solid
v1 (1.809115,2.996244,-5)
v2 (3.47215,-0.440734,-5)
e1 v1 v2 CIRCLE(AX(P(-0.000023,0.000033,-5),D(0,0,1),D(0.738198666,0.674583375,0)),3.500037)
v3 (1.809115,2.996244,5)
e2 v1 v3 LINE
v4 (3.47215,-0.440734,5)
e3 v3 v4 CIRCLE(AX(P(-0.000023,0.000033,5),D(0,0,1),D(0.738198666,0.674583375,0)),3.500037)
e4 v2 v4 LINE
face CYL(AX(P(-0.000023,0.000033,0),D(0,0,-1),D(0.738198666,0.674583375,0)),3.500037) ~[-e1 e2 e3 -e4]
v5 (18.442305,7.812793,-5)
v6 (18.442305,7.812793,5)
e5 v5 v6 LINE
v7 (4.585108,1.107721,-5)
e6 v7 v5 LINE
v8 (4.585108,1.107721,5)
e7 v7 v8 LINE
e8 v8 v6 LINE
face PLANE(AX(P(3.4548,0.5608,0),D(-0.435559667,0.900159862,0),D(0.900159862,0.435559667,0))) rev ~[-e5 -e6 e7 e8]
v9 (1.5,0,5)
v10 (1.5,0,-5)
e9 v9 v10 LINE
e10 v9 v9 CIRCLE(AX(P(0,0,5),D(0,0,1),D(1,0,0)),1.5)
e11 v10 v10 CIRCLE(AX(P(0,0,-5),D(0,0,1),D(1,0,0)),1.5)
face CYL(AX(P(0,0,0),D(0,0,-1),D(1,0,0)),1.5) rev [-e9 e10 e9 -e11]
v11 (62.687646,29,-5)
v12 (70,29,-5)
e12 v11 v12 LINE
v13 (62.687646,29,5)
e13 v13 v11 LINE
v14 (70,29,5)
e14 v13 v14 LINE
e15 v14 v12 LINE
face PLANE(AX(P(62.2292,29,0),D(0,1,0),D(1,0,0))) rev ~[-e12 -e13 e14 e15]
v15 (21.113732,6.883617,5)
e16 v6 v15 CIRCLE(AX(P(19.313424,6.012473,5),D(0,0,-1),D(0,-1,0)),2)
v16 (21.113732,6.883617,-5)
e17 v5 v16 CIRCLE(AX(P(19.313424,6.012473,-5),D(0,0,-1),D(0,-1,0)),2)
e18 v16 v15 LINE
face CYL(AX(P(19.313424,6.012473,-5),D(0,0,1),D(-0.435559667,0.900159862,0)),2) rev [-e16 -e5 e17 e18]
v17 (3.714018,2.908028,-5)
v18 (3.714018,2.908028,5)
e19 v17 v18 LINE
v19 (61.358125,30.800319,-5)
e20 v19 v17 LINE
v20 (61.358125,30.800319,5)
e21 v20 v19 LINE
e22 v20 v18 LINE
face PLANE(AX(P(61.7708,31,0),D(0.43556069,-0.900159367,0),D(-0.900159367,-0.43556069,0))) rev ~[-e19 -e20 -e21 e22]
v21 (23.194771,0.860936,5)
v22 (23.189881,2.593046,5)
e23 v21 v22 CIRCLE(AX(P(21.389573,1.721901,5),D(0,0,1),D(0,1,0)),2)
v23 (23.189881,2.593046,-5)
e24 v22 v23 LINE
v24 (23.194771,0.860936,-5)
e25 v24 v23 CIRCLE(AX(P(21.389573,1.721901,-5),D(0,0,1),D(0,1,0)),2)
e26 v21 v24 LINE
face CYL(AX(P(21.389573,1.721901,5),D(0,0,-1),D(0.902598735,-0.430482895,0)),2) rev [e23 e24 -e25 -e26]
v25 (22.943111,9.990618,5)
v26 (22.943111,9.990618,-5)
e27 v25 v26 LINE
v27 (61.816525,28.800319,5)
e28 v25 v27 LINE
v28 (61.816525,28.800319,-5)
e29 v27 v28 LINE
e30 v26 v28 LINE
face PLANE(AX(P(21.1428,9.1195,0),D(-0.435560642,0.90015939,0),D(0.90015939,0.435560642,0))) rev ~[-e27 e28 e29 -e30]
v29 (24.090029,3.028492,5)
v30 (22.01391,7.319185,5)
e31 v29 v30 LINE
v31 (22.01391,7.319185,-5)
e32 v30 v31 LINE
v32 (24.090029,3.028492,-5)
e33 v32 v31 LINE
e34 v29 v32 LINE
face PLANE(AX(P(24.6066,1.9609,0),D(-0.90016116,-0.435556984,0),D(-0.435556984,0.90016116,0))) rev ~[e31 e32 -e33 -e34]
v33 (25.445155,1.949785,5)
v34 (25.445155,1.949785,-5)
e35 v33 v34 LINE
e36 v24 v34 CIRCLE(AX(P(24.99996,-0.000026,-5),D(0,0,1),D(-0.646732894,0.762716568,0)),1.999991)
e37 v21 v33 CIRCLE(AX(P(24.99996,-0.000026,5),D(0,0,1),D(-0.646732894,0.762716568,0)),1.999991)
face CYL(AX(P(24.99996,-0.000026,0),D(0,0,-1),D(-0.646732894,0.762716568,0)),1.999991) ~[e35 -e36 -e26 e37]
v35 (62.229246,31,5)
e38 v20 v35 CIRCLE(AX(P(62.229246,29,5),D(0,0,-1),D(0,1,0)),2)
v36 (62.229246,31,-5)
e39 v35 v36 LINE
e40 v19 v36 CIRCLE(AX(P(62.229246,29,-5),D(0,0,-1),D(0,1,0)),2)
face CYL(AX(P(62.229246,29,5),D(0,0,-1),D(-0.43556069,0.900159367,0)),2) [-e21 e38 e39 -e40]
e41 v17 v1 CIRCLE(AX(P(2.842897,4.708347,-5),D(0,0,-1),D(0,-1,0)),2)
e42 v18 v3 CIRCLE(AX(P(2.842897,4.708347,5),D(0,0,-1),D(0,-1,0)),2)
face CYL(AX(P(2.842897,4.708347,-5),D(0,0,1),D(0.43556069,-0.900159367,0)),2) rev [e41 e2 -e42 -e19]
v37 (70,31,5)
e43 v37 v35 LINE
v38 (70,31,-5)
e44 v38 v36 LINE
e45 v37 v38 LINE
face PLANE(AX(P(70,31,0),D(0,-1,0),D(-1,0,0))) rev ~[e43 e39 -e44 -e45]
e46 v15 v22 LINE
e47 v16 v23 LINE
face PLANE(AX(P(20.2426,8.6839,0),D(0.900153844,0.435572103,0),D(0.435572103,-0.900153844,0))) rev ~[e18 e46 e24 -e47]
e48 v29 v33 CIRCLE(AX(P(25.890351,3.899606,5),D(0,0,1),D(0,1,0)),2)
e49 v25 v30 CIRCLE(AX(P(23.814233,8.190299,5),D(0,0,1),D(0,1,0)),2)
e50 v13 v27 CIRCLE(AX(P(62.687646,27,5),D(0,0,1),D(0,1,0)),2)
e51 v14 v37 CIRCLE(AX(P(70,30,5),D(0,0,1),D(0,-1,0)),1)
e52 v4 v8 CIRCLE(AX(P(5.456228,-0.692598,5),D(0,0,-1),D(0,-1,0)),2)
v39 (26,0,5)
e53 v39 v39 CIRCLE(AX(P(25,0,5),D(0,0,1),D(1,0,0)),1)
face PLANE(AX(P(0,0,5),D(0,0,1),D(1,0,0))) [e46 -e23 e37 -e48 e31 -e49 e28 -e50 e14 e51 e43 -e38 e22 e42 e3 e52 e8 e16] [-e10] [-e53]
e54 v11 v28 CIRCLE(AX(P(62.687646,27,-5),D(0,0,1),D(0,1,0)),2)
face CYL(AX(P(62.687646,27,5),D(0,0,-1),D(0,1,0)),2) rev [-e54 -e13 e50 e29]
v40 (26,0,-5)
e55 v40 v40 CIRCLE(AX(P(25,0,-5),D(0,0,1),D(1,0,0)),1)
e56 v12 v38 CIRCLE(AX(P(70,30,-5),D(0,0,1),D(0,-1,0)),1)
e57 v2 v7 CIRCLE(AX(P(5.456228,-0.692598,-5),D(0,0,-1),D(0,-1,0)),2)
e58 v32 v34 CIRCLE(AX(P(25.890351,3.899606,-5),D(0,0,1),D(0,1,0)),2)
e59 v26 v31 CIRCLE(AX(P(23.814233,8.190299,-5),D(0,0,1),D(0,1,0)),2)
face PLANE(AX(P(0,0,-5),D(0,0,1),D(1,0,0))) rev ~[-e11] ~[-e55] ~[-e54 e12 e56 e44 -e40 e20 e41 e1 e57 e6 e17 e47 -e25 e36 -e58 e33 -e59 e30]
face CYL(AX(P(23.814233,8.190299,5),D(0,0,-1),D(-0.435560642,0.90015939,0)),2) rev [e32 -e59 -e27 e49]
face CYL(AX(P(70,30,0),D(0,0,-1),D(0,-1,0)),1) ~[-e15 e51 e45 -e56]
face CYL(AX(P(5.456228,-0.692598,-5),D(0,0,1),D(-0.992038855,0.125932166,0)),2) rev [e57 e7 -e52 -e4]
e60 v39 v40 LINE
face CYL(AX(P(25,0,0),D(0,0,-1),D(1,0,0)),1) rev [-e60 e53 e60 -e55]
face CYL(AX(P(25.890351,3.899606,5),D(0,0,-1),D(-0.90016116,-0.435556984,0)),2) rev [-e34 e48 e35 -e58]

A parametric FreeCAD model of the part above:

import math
import FreeCAD as App
import Part
import Sketcher

V = App.Vector
Q = App.Units.Quantity


def edges_at(feature, points):
    """Names of the edges that pass closest to the given points."""
    edges = feature.Shape.Edges
    near = lambda p: min(range(len(edges)), key=lambda i: edges[i].distToShape(Part.Vertex(*p))[0])
    return sorted({f"Edge{near(p) + 1}" for p in points})

doc = App.newDocument("Part")
body = doc.addObject("PartDesign::Body", "Body")

# Sketch on XY plane
sketch1 = body.newObject("Sketcher::SketchObject", "Sketch")
sketch1.AttachmentSupport = (doc.getObject("XY_Plane"), [""])
sketch1.MapMode = "FlatFace"
sketch1.addGeometry(Part.LineSegment(V(61.7708, 31, 0), V(2.5837, 2.3611, 0)), False)
sketch1.addGeometry(Part.ArcOfCircle(Part.Circle(V(0, 0, 0), V(0, 0, 1), 3.500043), math.radians(42.422457), math.radians(369.220111)), False)
sketch1.addGeometry(Part.LineSegment(V(3.4548, 0.5608, 0), V(20.2426, 8.6839, 0)), False)
sketch1.addGeometry(Part.LineSegment(V(20.2426, 8.6839, 0), V(23.7065, 1.5254, 0)), False)
sketch1.addGeometry(Part.ArcOfCircle(Part.Circle(V(25, 0, 0), V(0, 0, 1), 1.999997), math.radians(130.297088), math.radians(461.344205)), False)
sketch1.addGeometry(Part.LineSegment(V(24.6066, 1.9609, 0), V(21.1428, 9.1195, 0)), False)
sketch1.addGeometry(Part.LineSegment(V(21.1428, 9.1195, 0), V(62.2292, 29, 0)), False)
sketch1.addGeometry(Part.LineSegment(V(62.2292, 29, 0), V(70, 29, 0)), False)
sketch1.addGeometry(Part.ArcOfCircle(Part.Circle(V(70, 30, 0), V(0, 0, 1), 1), math.radians(-90), math.radians(90)), False)
sketch1.addGeometry(Part.LineSegment(V(70, 31, 0), V(61.7708, 31, 0)), False)
sketch1.addGeometry(Part.Circle(V(0, 0, 0), V(0, 0, 1), 1.5), False)
sketch1.addGeometry(Part.Circle(V(25, 0, 0), V(0, 0, 1), 1), False)
sketch1.addConstraint(Sketcher.Constraint("Coincident", 0, 2, 1, 1))
sketch1.addConstraint(Sketcher.Constraint("Coincident", 1, 2, 2, 1))
sketch1.addConstraint(Sketcher.Constraint("Coincident", 2, 2, 3, 1))
sketch1.addConstraint(Sketcher.Constraint("Coincident", 3, 2, 4, 1))
sketch1.addConstraint(Sketcher.Constraint("Coincident", 4, 2, 5, 1))
sketch1.addConstraint(Sketcher.Constraint("Coincident", 5, 2, 6, 1))
sketch1.addConstraint(Sketcher.Constraint("Coincident", 6, 2, 7, 1))
sketch1.addConstraint(Sketcher.Constraint("Tangent", 7, 2, 8, 1))
sketch1.addConstraint(Sketcher.Constraint("Tangent", 8, 2, 9, 1))
sketch1.addConstraint(Sketcher.Constraint("Coincident", 9, 2, 0, 1))
sketch1.addConstraint(Sketcher.Constraint("Horizontal", 7))
sketch1.addConstraint(Sketcher.Constraint("Horizontal", 9))
sketch1.addConstraint(Sketcher.Constraint("Coincident", 1, 3, -1, 1))
sketch1.addConstraint(Sketcher.Constraint("Coincident", 10, 3, -1, 1))
sketch1.addConstraint(Sketcher.Constraint("Coincident", 11, 3, 4, 3))
sketch1.addConstraint(Sketcher.Constraint("Equal", 8, 11))
sketch1.addConstraint(Sketcher.Constraint("PointOnObject", 4, 3, -1))
sketch1.addConstraint(Sketcher.Constraint("Parallel", 0, 2))
sketch1.addConstraint(Sketcher.Constraint("Perpendicular", 2, 3))
sketch1.addConstraint(Sketcher.Constraint("Parallel", 3, 5))
sketch1.addConstraint(Sketcher.Constraint("Perpendicular", 5, 6))
sketch1.addConstraint(Sketcher.Constraint("Equal", 3, 5))
sketch1.addConstraint(Sketcher.Constraint("Diameter", 10, Q("3 mm")))
sketch1.addConstraint(Sketcher.Constraint("Diameter", 11, Q("2 mm")))
sketch1.addConstraint(Sketcher.Constraint("Radius", 4, Q("2 mm")))
sketch1.addConstraint(Sketcher.Constraint("Radius", 1, Q("3.5 mm")))
sketch1.addConstraint(Sketcher.Constraint("DistanceX", -1, 1, 4, 3, Q("25 mm")))
sketch1.addConstraint(Sketcher.Constraint("DistanceX", -1, 1, 8, 3, Q("70 mm")))
sketch1.addConstraint(Sketcher.Constraint("DistanceY", -1, 1, 8, 3, Q("30 mm")))
sketch1.addConstraint(Sketcher.Constraint("Angle", 0, Q("-154.179 deg")))
sketch1.addConstraint(Sketcher.Constraint("DistanceX", 3, 2, 4, 2, Q("0.9 mm")))
sketch1.addConstraint(Sketcher.Constraint("DistanceY", 1, 2, 4, 2, Q("1.4 mm")))
sketch1.addConstraint(Sketcher.Constraint("DistanceX", 7, 1, 7, 2, Q("7.7708 mm")))
sketch1.addConstraint(Sketcher.Constraint("DistanceX", 9, 2, 9, 1, Q("8.2292 mm")))
pad1 = body.newObject("PartDesign::Pad", "Pad")
pad1.Profile = sketch1
pad1.Length = 10
pad1.Midplane = True
doc.recompute()

fillet = body.newObject("PartDesign::Fillet", "Fillet")
fillet.Base = (pad1, edges_at(pad1, [
    (3.455, 0.561, 0),
    (2.584, 2.361, 0),
    (21.143, 9.12, 0),
    (20.243, 8.684, 0),
    (62.229, 29, 0),
    (61.771, 31, 0),
    (24.607, 1.961, 0),
    (23.706, 1.525, 0),
]))
fillet.Radius = 2

doc.recompute()
